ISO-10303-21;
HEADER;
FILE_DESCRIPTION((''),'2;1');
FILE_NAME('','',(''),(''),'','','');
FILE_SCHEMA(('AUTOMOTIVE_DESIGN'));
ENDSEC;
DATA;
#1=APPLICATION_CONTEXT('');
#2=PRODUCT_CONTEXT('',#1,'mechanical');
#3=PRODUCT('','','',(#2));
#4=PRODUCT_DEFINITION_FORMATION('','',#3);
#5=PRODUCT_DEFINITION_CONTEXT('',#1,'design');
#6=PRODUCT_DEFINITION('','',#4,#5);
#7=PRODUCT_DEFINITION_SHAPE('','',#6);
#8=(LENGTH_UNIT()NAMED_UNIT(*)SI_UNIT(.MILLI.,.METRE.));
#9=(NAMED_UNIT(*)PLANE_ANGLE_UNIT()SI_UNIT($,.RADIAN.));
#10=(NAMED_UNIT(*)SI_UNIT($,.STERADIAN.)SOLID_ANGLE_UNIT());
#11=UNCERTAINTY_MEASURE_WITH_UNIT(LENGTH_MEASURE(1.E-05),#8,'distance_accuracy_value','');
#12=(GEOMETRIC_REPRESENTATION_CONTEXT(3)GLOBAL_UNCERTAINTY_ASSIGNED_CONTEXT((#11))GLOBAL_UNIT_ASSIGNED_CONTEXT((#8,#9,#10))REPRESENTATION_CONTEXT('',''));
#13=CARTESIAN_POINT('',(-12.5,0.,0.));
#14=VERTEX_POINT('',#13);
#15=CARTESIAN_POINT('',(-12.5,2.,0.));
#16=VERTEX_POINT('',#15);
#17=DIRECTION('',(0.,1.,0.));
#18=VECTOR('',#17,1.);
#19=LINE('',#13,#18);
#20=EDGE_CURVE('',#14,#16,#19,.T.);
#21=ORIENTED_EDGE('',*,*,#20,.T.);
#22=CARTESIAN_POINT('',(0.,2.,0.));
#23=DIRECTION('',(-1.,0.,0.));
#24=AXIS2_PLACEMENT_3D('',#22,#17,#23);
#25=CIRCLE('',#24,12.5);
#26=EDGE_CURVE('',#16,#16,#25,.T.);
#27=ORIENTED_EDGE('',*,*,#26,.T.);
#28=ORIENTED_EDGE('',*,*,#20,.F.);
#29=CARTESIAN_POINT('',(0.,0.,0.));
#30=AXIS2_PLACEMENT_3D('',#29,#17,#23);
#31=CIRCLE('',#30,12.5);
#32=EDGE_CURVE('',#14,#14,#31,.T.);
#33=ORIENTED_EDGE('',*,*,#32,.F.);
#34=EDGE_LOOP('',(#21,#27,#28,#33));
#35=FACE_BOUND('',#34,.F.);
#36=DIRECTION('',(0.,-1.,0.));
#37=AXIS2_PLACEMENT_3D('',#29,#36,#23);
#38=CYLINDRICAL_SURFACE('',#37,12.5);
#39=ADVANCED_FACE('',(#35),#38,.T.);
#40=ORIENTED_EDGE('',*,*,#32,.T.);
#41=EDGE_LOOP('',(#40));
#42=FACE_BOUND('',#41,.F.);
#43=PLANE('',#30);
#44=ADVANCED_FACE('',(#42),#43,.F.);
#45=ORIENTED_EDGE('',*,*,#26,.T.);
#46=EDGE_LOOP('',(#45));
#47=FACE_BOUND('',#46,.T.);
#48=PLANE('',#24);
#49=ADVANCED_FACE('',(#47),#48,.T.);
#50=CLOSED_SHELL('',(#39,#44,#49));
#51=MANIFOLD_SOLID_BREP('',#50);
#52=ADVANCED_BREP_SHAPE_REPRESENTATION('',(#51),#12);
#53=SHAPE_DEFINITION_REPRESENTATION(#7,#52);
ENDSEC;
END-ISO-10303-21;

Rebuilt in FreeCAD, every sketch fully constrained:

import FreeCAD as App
import Part
import Sketcher

doc = App.newDocument("Part")
body = doc.addObject("PartDesign::Body", "Body")

# Sketch on XZ plane
sketch1 = doc.addObject("Sketcher::SketchObject", "Sketch")
body.addObject(sketch1)
sketch1.AttachmentSupport = (doc.XZ_Plane, [""])
sketch1.MapMode = "FlatFace"
sketch1.addGeometry(Part.Circle(App.Vector(0, 0, 0), App.Vector(0, 0, 1), 12.5), False)
sketch1.addConstraint([
    Sketcher.Constraint("Coincident", 0, 3, -1, 1),
    Sketcher.Constraint("Diameter", 0, 25.0),
])
pad1 = doc.addObject("PartDesign::Pad", "Pad")
body.addObject(pad1)
pad1.Profile = sketch1
pad1.Length = 2
pad1.Reversed = True

doc.recompute()
